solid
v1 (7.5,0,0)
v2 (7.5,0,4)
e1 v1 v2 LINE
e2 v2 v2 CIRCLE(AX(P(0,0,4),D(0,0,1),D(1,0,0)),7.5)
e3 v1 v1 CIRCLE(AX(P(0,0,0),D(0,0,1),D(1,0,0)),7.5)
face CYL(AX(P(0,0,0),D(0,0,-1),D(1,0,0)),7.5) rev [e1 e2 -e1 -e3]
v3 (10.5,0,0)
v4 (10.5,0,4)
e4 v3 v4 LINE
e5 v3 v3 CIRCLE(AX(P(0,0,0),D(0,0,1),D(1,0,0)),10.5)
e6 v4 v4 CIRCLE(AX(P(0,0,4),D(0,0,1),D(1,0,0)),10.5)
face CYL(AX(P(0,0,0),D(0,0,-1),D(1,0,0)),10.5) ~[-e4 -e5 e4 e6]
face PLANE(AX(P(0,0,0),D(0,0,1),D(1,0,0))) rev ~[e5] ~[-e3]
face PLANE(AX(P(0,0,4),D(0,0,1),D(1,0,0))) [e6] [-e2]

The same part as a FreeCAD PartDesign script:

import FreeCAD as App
import Part
import Sketcher
from FreeCAD import Vector
Q = App.Units.Quantity

doc = App.newDocument("Part")
body = doc.addObject("PartDesign::Body", "Body")

# Sketch on XY plane
sketch1 = body.newObject("Sketcher::SketchObject", "Sketch")
sketch1.AttachmentSupport = (doc.getObject("XY_Plane"), [""])
sketch1.MapMode = "FlatFace"
sketch1.addGeometry(Part.Circle(Vector(0, 0, 0), Vector(0, 0, 1), 10.5), False)
sketch1.addGeometry(Part.Circle(Vector(0, 0, 0), Vector(0, 0, 1), 7.5), False)
sketch1.addConstraint(Sketcher.Constraint("Coincident", 0, 3, -1, 1))
sketch1.addConstraint(Sketcher.Constraint("Coincident", 1, 3, -1, 1))
sketch1.addConstraint(Sketcher.Constraint("Diameter", 0, Q("21 mm")))
sketch1.addConstraint(Sketcher.Constraint("Diameter", 1, Q("15 mm")))
pad1 = body.newObject("PartDesign::Pad", "Pad")
pad1.Profile = sketch1
pad1.Length = 4

doc.recompute()
